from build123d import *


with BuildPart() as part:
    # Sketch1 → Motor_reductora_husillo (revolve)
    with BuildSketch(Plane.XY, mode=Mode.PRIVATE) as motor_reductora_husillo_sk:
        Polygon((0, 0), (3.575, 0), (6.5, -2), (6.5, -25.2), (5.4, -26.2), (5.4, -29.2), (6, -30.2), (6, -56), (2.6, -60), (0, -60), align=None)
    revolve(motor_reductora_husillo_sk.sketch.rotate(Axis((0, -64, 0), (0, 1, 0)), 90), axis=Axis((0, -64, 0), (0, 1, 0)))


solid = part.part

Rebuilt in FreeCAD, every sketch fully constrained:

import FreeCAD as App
import Part
import Sketcher
Q = App.Units.Quantity

doc = App.newDocument("Part")
body = doc.addObject("PartDesign::Body", "Body")

# Sketch on XY plane
sketch1 = body.newObject("Sketcher::SketchObject", "Sketch")
sketch1.AttachmentSupport = (doc.getObject("XY_Plane"), [""])
sketch1.MapMode = "FlatFace"
sketch1.addGeometry(Part.LineSegment(App.Vector(3.6, 0, 0), App.Vector(0, 0, 0)), False)
sketch1.addGeometry(Part.LineSegment(App.Vector(0, 0, 0), App.Vector(0, -60, 0)), False)
sketch1.addGeometry(Part.LineSegment(App.Vector(0, -60, 0), App.Vector(2.6, -60, 0)), False)
sketch1.addGeometry(Part.LineSegment(App.Vector(2.6, -60, 0), App.Vector(6, -56, 0)), False)
sketch1.addGeometry(Part.LineSegment(App.Vector(6, -56, 0), App.Vector(6, -30.2, 0)), False)
sketch1.addGeometry(Part.LineSegment(App.Vector(6, -30.2, 0), App.Vector(5.4, -29.2, 0)), False)
sketch1.addGeometry(Part.LineSegment(App.Vector(5.4, -29.2, 0), App.Vector(5.4, -26.2, 0)), False)
sketch1.addGeometry(Part.LineSegment(App.Vector(5.4, -26.2, 0), App.Vector(6.5, -25.2, 0)), False)
sketch1.addGeometry(Part.LineSegment(App.Vector(6.5, -25.2, 0), App.Vector(6.5, -2, 0)), False)
sketch1.addGeometry(Part.LineSegment(App.Vector(6.5, -2, 0), App.Vector(3.6, 0, 0)), False)
sketch1.addConstraint(Sketcher.Constraint("Coincident", 0, 2, 1, 1))
sketch1.addConstraint(Sketcher.Constraint("Coincident", 1, 2, 2, 1))
sketch1.addConstraint(Sketcher.Constraint("Coincident", 2, 2, 3, 1))
sketch1.addConstraint(Sketcher.Constraint("Coincident", 3, 2, 4, 1))
sketch1.addConstraint(Sketcher.Constraint("Coincident", 4, 2, 5, 1))
sketch1.addConstraint(Sketcher.Constraint("Coincident", 5, 2, 6, 1))
sketch1.addConstraint(Sketcher.Constraint("Coincident", 6, 2, 7, 1))
sketch1.addConstraint(Sketcher.Constraint("Coincident", 7, 2, 8, 1))
sketch1.addConstraint(Sketcher.Constraint("Coincident", 8, 2, 9, 1))
sketch1.addConstraint(Sketcher.Constraint("Coincident", 9, 2, 0, 1))
sketch1.addConstraint(Sketcher.Constraint("Horizontal", 0))
sketch1.addConstraint(Sketcher.Constraint("Vertical", 1))
sketch1.addConstraint(Sketcher.Constraint("Horizontal", 2))
sketch1.addConstraint(Sketcher.Constraint("Vertical", 4))
sketch1.addConstraint(Sketcher.Constraint("Vertical", 6))
sketch1.addConstraint(Sketcher.Constraint("Vertical", 8))
sketch1.addConstraint(Sketcher.Constraint("Coincident", 0, 2, -1, 1))
sketch1.addConstraint(Sketcher.Constraint("DistanceY", 1, 2, 1, 1, Q("60 mm")))
sketch1.addConstraint(Sketcher.Constraint("DistanceY", 6, 1, 6, 2, Q("3 mm")))
sketch1.addConstraint(Sketcher.Constraint("DistanceX", 2, 1, 2, 2, Q("2.6 mm")))
sketch1.addConstraint(Sketcher.Constraint("DistanceY", 4, 1, 4, 2, Q("25.8 mm")))
sketch1.addConstraint(Sketcher.Constraint("DistanceY", 8, 1, 8, 2, Q("23.2 mm")))
sketch1.addConstraint(Sketcher.Constraint("DistanceX", -1, 1, 3, 2, Q("6 mm")))
sketch1.addConstraint(Sketcher.Constraint("DistanceY", 3, 2, -1, 1, Q("56 mm")))
sketch1.addConstraint(Sketcher.Constraint("DistanceY", 8, 2, -1, 1, Q("2 mm")))
sketch1.addConstraint(Sketcher.Constraint("DistanceY", 4, 2, 5, 2, Q("1 mm")))
sketch1.addConstraint(Sketcher.Constraint("DistanceX", -1, 1, 5, 2, Q("5.4 mm")))
sketch1.addConstraint(Sketcher.Constraint("DistanceX", -1, 1, 7, 2, Q("6.5 mm")))
sketch1.addConstraint(Sketcher.Constraint("DistanceX", 0, 2, 0, 1, Q("3.575 mm")))
revolution = body.newObject("PartDesign::Revolution", "Revolution")
revolution.Profile = sketch1
revolution.ReferenceAxis = (sketch1, ["V_Axis"])
revolution.Angle = 360

doc.recompute()
